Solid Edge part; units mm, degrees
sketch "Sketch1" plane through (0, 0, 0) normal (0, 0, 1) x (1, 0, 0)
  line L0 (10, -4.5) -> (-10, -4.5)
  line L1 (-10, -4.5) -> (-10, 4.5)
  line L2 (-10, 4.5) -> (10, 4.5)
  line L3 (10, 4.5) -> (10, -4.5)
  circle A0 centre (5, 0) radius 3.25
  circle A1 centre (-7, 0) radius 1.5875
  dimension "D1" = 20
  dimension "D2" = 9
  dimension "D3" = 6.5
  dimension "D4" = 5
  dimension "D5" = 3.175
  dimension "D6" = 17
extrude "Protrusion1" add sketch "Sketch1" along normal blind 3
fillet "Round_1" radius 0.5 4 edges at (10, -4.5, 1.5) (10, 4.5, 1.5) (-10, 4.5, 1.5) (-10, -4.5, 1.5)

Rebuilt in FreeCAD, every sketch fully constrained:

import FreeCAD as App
import Part
import Sketcher


def edges_at(feature, points):
    """Names of the edges that pass closest to the given points."""
    edges = feature.Shape.Edges
    near = lambda p: min(range(len(edges)), key=lambda i: edges[i].distToShape(Part.Vertex(*p))[0])
    return sorted({f"Edge{near(p) + 1}" for p in points})


def add_polygon(sketch, points):
    """Adds a closed chain of lines whose ends are joined by coincident constraints."""
    first, n = sketch.GeometryCount, len(points)
    for a, b in zip(points, points[1:] + points[:1]):
        sketch.addGeometry(Part.LineSegment(App.Vector(*a, 0), App.Vector(*b, 0)), False)
    for i in range(n):
        sketch.addConstraint(Sketcher.Constraint("Coincident", first + i, 2, first + (i + 1) % n, 1))

doc = App.newDocument("Part")
body = doc.addObject("PartDesign::Body", "Body")

# Sketch on XY plane
sketch1 = body.newObject("Sketcher::SketchObject", "Sketch")
sketch1.AttachmentSupport = (doc.getObject("XY_Plane"), [""])
sketch1.MapMode = "FlatFace"
add_polygon(sketch1, [(-10, -4.5), (10, -4.5), (10, 4.5), (-10, 4.5)])  # lines 0-3
sketch1.addGeometry(Part.Circle(App.Vector(-7, 0, 0), App.Vector(0, 0, 1), 1.5875), False)  # 4
sketch1.addGeometry(Part.Circle(App.Vector(5, 0, 0), App.Vector(0, 0, 1), 3.25), False)  # 5
sketch1.addConstraint([
    Sketcher.Constraint("Horizontal", 0),
    Sketcher.Constraint("Vertical", 1),
    Sketcher.Constraint("Horizontal", 2),
    Sketcher.Constraint("Vertical", 3),
    Sketcher.Constraint("Symmetric", 0, 2, 2, 2, -1, 1),
    Sketcher.Constraint("PointOnObject", 4, 3, -1),
    Sketcher.Constraint("PointOnObject", 5, 3, -1),
    Sketcher.Constraint("Diameter", 5, 6.5),
    Sketcher.Constraint("DistanceX", 0, 1, 0, 2, 20.0),
    Sketcher.Constraint("DistanceY", 1, 1, 1, 2, 9.0),
    Sketcher.Constraint("Diameter", 4, 3.175),
    Sketcher.Constraint("DistanceX", 4, 3, -1, 1, 7.0),
    Sketcher.Constraint("DistanceX", -1, 1, 5, 3, 5.0),
])
pad1 = body.newObject("PartDesign::Pad", "Pad")
pad1.Profile = sketch1
pad1.Length = 3
doc.recompute()

fillet = body.newObject("PartDesign::Fillet", "Fillet")
fillet.Base = (pad1, edges_at(pad1, [
    (10, -4.5, 1.5),
    (10, 4.5, 1.5),
    (-10, 4.5, 1.5),
    (-10, -4.5, 1.5),
]))
fillet.Radius = 0.5

doc.recompute()
